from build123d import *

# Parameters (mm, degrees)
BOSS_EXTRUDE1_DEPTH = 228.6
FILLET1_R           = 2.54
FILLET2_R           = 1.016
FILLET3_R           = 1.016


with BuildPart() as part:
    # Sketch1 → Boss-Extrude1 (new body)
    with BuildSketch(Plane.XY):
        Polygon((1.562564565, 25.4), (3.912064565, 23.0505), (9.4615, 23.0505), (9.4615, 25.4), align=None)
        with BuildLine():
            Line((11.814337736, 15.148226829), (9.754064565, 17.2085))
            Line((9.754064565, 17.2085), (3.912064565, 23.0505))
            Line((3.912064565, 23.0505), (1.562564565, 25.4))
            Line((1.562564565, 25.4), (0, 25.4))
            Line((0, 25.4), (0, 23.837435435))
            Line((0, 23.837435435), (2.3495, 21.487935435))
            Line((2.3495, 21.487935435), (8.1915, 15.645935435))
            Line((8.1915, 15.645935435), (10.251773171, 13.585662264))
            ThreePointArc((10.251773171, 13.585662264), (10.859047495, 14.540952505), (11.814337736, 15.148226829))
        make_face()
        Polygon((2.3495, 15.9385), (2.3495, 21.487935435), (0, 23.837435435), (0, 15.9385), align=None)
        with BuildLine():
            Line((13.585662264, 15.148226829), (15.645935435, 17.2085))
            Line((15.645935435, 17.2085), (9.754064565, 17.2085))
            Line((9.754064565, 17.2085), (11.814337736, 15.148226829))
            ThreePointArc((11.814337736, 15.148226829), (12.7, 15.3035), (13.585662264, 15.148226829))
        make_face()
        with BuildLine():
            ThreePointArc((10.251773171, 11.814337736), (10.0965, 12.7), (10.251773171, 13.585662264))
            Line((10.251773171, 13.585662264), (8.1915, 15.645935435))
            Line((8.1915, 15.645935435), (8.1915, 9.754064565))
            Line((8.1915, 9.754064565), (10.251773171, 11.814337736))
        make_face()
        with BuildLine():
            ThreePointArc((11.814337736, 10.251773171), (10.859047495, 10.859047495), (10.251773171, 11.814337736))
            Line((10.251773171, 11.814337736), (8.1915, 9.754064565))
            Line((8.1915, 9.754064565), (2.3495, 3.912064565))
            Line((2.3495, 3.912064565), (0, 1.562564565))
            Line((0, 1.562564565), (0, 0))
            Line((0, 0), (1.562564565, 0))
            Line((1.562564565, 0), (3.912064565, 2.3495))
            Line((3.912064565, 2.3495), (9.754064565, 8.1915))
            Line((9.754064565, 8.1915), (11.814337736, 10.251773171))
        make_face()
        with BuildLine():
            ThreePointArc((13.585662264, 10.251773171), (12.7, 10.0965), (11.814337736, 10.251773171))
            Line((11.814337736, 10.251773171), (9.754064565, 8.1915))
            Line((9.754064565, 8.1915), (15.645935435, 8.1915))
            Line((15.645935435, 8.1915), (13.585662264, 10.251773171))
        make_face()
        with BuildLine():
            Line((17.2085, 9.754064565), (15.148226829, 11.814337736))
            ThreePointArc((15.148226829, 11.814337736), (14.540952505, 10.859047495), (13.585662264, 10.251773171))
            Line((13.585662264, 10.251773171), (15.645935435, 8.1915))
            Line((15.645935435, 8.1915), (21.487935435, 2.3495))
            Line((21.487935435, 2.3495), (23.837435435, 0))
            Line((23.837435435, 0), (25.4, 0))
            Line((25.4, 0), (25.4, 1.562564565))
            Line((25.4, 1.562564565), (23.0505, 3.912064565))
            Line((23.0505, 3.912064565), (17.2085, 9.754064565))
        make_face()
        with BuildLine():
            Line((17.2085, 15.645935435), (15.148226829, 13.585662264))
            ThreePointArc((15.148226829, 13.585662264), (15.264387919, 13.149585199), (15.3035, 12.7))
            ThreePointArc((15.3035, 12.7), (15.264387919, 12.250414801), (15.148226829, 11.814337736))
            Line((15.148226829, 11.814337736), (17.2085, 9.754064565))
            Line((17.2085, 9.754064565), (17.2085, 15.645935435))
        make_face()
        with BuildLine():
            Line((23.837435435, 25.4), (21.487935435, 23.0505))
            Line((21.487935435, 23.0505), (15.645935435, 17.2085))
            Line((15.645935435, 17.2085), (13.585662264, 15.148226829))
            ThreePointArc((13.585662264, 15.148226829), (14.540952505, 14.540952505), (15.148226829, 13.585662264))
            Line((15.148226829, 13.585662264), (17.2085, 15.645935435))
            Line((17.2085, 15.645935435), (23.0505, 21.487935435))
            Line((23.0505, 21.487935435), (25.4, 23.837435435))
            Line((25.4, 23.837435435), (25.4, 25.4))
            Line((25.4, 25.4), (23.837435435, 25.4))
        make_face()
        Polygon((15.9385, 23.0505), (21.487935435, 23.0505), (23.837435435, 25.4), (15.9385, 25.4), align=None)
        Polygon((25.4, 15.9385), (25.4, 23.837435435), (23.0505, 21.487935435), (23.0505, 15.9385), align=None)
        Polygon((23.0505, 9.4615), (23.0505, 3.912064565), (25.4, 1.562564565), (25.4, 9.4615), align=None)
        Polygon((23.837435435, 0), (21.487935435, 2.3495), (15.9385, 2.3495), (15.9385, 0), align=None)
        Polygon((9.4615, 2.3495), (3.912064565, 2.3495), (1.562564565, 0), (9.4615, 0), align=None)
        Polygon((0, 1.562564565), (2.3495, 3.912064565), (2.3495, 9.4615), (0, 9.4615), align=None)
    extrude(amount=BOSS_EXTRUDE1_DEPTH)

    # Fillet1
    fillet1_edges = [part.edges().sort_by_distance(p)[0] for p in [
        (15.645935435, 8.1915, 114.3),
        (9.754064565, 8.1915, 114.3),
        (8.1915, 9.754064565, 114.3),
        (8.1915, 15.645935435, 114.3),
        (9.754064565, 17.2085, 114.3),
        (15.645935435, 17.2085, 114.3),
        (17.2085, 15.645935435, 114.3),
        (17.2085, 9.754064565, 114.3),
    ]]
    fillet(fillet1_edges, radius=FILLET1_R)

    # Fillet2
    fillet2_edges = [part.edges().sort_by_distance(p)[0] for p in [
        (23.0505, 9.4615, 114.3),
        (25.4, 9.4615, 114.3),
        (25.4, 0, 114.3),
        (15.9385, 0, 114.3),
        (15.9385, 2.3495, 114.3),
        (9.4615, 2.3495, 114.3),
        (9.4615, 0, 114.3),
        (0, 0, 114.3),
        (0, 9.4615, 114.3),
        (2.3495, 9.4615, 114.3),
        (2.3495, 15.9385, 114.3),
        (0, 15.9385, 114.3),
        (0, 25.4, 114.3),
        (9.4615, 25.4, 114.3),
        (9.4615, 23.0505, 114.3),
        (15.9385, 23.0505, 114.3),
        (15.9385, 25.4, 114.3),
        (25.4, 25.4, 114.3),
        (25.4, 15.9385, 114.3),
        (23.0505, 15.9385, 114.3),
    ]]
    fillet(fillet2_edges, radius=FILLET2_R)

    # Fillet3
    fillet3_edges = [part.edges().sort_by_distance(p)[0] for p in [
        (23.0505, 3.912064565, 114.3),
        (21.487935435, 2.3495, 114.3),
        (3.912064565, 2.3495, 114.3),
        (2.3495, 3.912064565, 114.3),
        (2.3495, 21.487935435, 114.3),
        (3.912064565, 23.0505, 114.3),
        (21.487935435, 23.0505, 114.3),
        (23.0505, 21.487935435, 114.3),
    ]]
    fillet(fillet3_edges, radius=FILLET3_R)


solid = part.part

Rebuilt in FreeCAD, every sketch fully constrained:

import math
import FreeCAD as App
import Part
import Sketcher

V = App.Vector
Q = App.Units.Quantity


def edges_at(feature, points):
    """Names of the edges that pass closest to the given points."""
    edges = feature.Shape.Edges
    near = lambda p: min(range(len(edges)), key=lambda i: edges[i].distToShape(Part.Vertex(*p))[0])
    return sorted({f"Edge{near(p) + 1}" for p in points})

doc = App.newDocument("Part")
params = doc.addObject("Spreadsheet::Sheet", "Params")
for row, (alias, value) in enumerate([
    ("pad1_length", "9 in"),
    ("fillet_radius", "0.1 in"),
    ("fillet2_radius", "0.04 in"),
    ("fillet3_radius", "0.04 in"),
], start=1):
    params.set(f"A{row}", alias)
    params.set(f"B{row}", "=" + value)
    params.setAlias(f"B{row}", alias)

body = doc.addObject("PartDesign::Body", "Body")

sketch1 = body.newObject("Sketcher::SketchObject", "Sketch")
sketch1.AttachmentSupport = (doc.getObject("XY_Plane"), [""])
sketch1.MapMode = "FlatFace"
sketch1.addGeometry(Part.LineSegment(V(3.9, 23.1, 0), V(9.5, 23.1, 0)), False)
sketch1.addGeometry(Part.LineSegment(V(9.5, 23.1, 0), V(9.5, 25.4, 0)), False)
sketch1.addGeometry(Part.LineSegment(V(9.5, 25.4, 0), V(0, 25.4, 0)), False)
sketch1.addGeometry(Part.LineSegment(V(0, 25.4, 0), V(0, 15.9, 0)), False)
sketch1.addGeometry(Part.LineSegment(V(0, 15.9, 0), V(2.3, 15.9, 0)), False)
sketch1.addGeometry(Part.LineSegment(V(2.3, 15.9, 0), V(2.3, 21.5, 0)), False)
sketch1.addGeometry(Part.LineSegment(V(2.3, 21.5, 0), V(8.2, 15.6, 0)), False)
sketch1.addGeometry(Part.LineSegment(V(8.2, 15.6, 0), V(8.2, 9.8, 0)), False)
sketch1.addGeometry(Part.LineSegment(V(8.2, 9.8, 0), V(2.3, 3.9, 0)), False)
sketch1.addGeometry(Part.LineSegment(V(2.3, 3.9, 0), V(2.3, 9.5, 0)), False)
sketch1.addGeometry(Part.LineSegment(V(2.3, 9.5, 0), V(0, 9.5, 0)), False)
sketch1.addGeometry(Part.LineSegment(V(0, 9.5, 0), V(0, 0, 0)), False)
sketch1.addGeometry(Part.LineSegment(V(0, 0, 0), V(9.5, 0, 0)), False)
sketch1.addGeometry(Part.LineSegment(V(9.5, 0, 0), V(9.5, 2.3, 0)), False)
sketch1.addGeometry(Part.LineSegment(V(9.5, 2.3, 0), V(3.9, 2.3, 0)), False)
sketch1.addGeometry(Part.LineSegment(V(3.9, 2.3, 0), V(9.8, 8.2, 0)), False)
sketch1.addGeometry(Part.LineSegment(V(9.8, 8.2, 0), V(15.6, 8.2, 0)), False)
sketch1.addGeometry(Part.LineSegment(V(15.6, 8.2, 0), V(21.5, 2.3, 0)), False)
sketch1.addGeometry(Part.LineSegment(V(21.5, 2.3, 0), V(15.9, 2.3, 0)), False)
sketch1.addGeometry(Part.LineSegment(V(15.9, 2.3, 0), V(15.9, 0, 0)), False)
sketch1.addGeometry(Part.LineSegment(V(15.9, 0, 0), V(25.4, 0, 0)), False)
sketch1.addGeometry(Part.LineSegment(V(25.4, 0, 0), V(25.4, 9.5, 0)), False)
sketch1.addGeometry(Part.LineSegment(V(25.4, 9.5, 0), V(23.1, 9.5, 0)), False)
sketch1.addGeometry(Part.LineSegment(V(23.1, 9.5, 0), V(23.1, 3.9, 0)), False)
sketch1.addGeometry(Part.LineSegment(V(23.1, 3.9, 0), V(17.2, 9.8, 0)), False)
sketch1.addGeometry(Part.LineSegment(V(17.2, 9.8, 0), V(17.2, 15.6, 0)), False)
sketch1.addGeometry(Part.LineSegment(V(17.2, 15.6, 0), V(23.1, 21.5, 0)), False)
sketch1.addGeometry(Part.LineSegment(V(23.1, 21.5, 0), V(23.1, 15.9, 0)), False)
sketch1.addGeometry(Part.LineSegment(V(23.1, 15.9, 0), V(25.4, 15.9, 0)), False)
sketch1.addGeometry(Part.LineSegment(V(25.4, 15.9, 0), V(25.4, 25.4, 0)), False)
sketch1.addGeometry(Part.LineSegment(V(25.4, 25.4, 0), V(15.9, 25.4, 0)), False)
sketch1.addGeometry(Part.LineSegment(V(15.9, 25.4, 0), V(15.9, 23.1, 0)), False)
sketch1.addGeometry(Part.LineSegment(V(15.9, 23.1, 0), V(21.5, 23.1, 0)), False)
sketch1.addGeometry(Part.LineSegment(V(21.5, 23.1, 0), V(15.6, 17.2, 0)), False)
sketch1.addGeometry(Part.LineSegment(V(15.6, 17.2, 0), V(9.8, 17.2, 0)), False)
sketch1.addGeometry(Part.LineSegment(V(9.8, 17.2, 0), V(3.9, 23.1, 0)), False)
sketch1.addGeometry(Part.ArcOfCircle(Part.Circle(V(12.7, 12.7, 0), V(0, 0, 1), 2.6), math.radians(0), math.radians(19.89)), False)
sketch1.addGeometry(Part.ArcOfCircle(Part.Circle(V(12.7, 12.7, 0), V(0, 0, 1), 2.6), math.radians(-19.89), math.radians(0)), False)
sketch1.addGeometry(Part.ArcOfCircle(Part.Circle(V(12.7, 12.7, 0), V(0, 0, 1), 2.6), math.radians(-70), math.radians(-20)), False)
sketch1.addGeometry(Part.ArcOfCircle(Part.Circle(V(12.7, 12.7, 0), V(0, 0, 1), 2.6), math.radians(-110), math.radians(-70)), False)
sketch1.addGeometry(Part.ArcOfCircle(Part.Circle(V(12.7, 12.7, 0), V(0, 0, 1), 2.6), math.radians(-160), math.radians(-110)), False)
sketch1.addGeometry(Part.ArcOfCircle(Part.Circle(V(12.7, 12.7, 0), V(0, 0, 1), 2.6), math.radians(160), math.radians(200)), False)
sketch1.addGeometry(Part.ArcOfCircle(Part.Circle(V(12.7, 12.7, 0), V(0, 0, 1), 2.6), math.radians(110), math.radians(160)), False)
sketch1.addGeometry(Part.ArcOfCircle(Part.Circle(V(12.7, 12.7, 0), V(0, 0, 1), 2.6), math.radians(70), math.radians(110)), False)
sketch1.addGeometry(Part.ArcOfCircle(Part.Circle(V(12.7, 12.7, 0), V(0, 0, 1), 2.6), math.radians(20), math.radians(70)), False)
sketch1.addConstraint(Sketcher.Constraint("Coincident", 0, 2, 1, 1))
sketch1.addConstraint(Sketcher.Constraint("Coincident", 1, 2, 2, 1))
sketch1.addConstraint(Sketcher.Constraint("Coincident", 2, 2, 3, 1))
sketch1.addConstraint(Sketcher.Constraint("Coincident", 3, 2, 4, 1))
sketch1.addConstraint(Sketcher.Constraint("Coincident", 4, 2, 5, 1))
sketch1.addConstraint(Sketcher.Constraint("Coincident", 5, 2, 6, 1))
sketch1.addConstraint(Sketcher.Constraint("Coincident", 6, 2, 7, 1))
sketch1.addConstraint(Sketcher.Constraint("Coincident", 7, 2, 8, 1))
sketch1.addConstraint(Sketcher.Constraint("Coincident", 8, 2, 9, 1))
sketch1.addConstraint(Sketcher.Constraint("Coincident", 9, 2, 10, 1))
sketch1.addConstraint(Sketcher.Constraint("Coincident", 10, 2, 11, 1))
sketch1.addConstraint(Sketcher.Constraint("Coincident", 11, 2, 12, 1))
sketch1.addConstraint(Sketcher.Constraint("Coincident", 12, 2, 13, 1))
sketch1.addConstraint(Sketcher.Constraint("Coincident", 13, 2, 14, 1))
sketch1.addConstraint(Sketcher.Constraint("Coincident", 14, 2, 15, 1))
sketch1.addConstraint(Sketcher.Constraint("Coincident", 15, 2, 16, 1))
sketch1.addConstraint(Sketcher.Constraint("Coincident", 16, 2, 17, 1))
sketch1.addConstraint(Sketcher.Constraint("Coincident", 17, 2, 18, 1))
sketch1.addConstraint(Sketcher.Constraint("Coincident", 18, 2, 19, 1))
sketch1.addConstraint(Sketcher.Constraint("Coincident", 19, 2, 20, 1))
sketch1.addConstraint(Sketcher.Constraint("Coincident", 20, 2, 21, 1))
sketch1.addConstraint(Sketcher.Constraint("Coincident", 21, 2, 22, 1))
sketch1.addConstraint(Sketcher.Constraint("Coincident", 22, 2, 23, 1))
sketch1.addConstraint(Sketcher.Constraint("Coincident", 23, 2, 24, 1))
sketch1.addConstraint(Sketcher.Constraint("Coincident", 24, 2, 25, 1))
sketch1.addConstraint(Sketcher.Constraint("Coincident", 25, 2, 26, 1))
sketch1.addConstraint(Sketcher.Constraint("Coincident", 26, 2, 27, 1))
sketch1.addConstraint(Sketcher.Constraint("Coincident", 27, 2, 28, 1))
sketch1.addConstraint(Sketcher.Constraint("Coincident", 28, 2, 29, 1))
sketch1.addConstraint(Sketcher.Constraint("Coincident", 29, 2, 30, 1))
sketch1.addConstraint(Sketcher.Constraint("Coincident", 30, 2, 31, 1))
sketch1.addConstraint(Sketcher.Constraint("Coincident", 31, 2, 32, 1))
sketch1.addConstraint(Sketcher.Constraint("Coincident", 32, 2, 33, 1))
sketch1.addConstraint(Sketcher.Constraint("Coincident", 33, 2, 34, 1))
sketch1.addConstraint(Sketcher.Constraint("Coincident", 34, 2, 35, 1))
sketch1.addConstraint(Sketcher.Constraint("Coincident", 35, 2, 0, 1))
sketch1.addConstraint(Sketcher.Constraint("Tangent", 36, 1, 37, 2))
sketch1.addConstraint(Sketcher.Constraint("Tangent", 37, 1, 38, 2))
sketch1.addConstraint(Sketcher.Constraint("Tangent", 38, 1, 39, 2))
sketch1.addConstraint(Sketcher.Constraint("Tangent", 39, 1, 40, 2))
sketch1.addConstraint(Sketcher.Constraint("Tangent", 40, 1, 41, 2))
sketch1.addConstraint(Sketcher.Constraint("Tangent", 41, 1, 42, 2))
sketch1.addConstraint(Sketcher.Constraint("Tangent", 42, 1, 43, 2))
sketch1.addConstraint(Sketcher.Constraint("Tangent", 43, 1, 44, 2))
sketch1.addConstraint(Sketcher.Constraint("Tangent", 44, 1, 36, 2))
sketch1.addConstraint(Sketcher.Constraint("Horizontal", 0))
sketch1.addConstraint(Sketcher.Constraint("Vertical", 1))
sketch1.addConstraint(Sketcher.Constraint("Horizontal", 2))
sketch1.addConstraint(Sketcher.Constraint("Vertical", 3))
sketch1.addConstraint(Sketcher.Constraint("Horizontal", 4))
sketch1.addConstraint(Sketcher.Constraint("Vertical", 5))
sketch1.addConstraint(Sketcher.Constraint("Vertical", 7))
sketch1.addConstraint(Sketcher.Constraint("Vertical", 9))
sketch1.addConstraint(Sketcher.Constraint("Horizontal", 10))
sketch1.addConstraint(Sketcher.Constraint("Vertical", 11))
sketch1.addConstraint(Sketcher.Constraint("Horizontal", 12))
sketch1.addConstraint(Sketcher.Constraint("Vertical", 13))
sketch1.addConstraint(Sketcher.Constraint("Horizontal", 14))
sketch1.addConstraint(Sketcher.Constraint("Horizontal", 16))
sketch1.addConstraint(Sketcher.Constraint("Horizontal", 18))
sketch1.addConstraint(Sketcher.Constraint("Vertical", 19))
sketch1.addConstraint(Sketcher.Constraint("Horizontal", 20))
sketch1.addConstraint(Sketcher.Constraint("Vertical", 21))
sketch1.addConstraint(Sketcher.Constraint("Horizontal", 22))
sketch1.addConstraint(Sketcher.Constraint("Vertical", 23))
sketch1.addConstraint(Sketcher.Constraint("Vertical", 25))
sketch1.addConstraint(Sketcher.Constraint("Vertical", 27))
sketch1.addConstraint(Sketcher.Constraint("Horizontal", 28))
sketch1.addConstraint(Sketcher.Constraint("Vertical", 29))
sketch1.addConstraint(Sketcher.Constraint("Horizontal", 30))
sketch1.addConstraint(Sketcher.Constraint("Vertical", 31))
sketch1.addConstraint(Sketcher.Constraint("Horizontal", 32))
sketch1.addConstraint(Sketcher.Constraint("Horizontal", 34))
sketch1.addConstraint(Sketcher.Constraint("Coincident", 11, 2, -1, 1))
sketch1.addConstraint(Sketcher.Constraint("Coincident", 38, 3, 36, 3))
sketch1.addConstraint(Sketcher.Constraint("Coincident", 40, 3, 36, 3))
sketch1.addConstraint(Sketcher.Constraint("Coincident", 42, 3, 36, 3))
sketch1.addConstraint(Sketcher.Constraint("PointOnObject", 2, 2, -2))
sketch1.addConstraint(Sketcher.Constraint("PointOnObject", 19, 2, -1))
sketch1.addConstraint(Sketcher.Constraint("Perpendicular", 6, 8))
sketch1.addConstraint(Sketcher.Constraint("Parallel", 8, 15))
sketch1.addConstraint(Sketcher.Constraint("Perpendicular", 15, 17))
sketch1.addConstraint(Sketcher.Constraint("Parallel", 17, 24))
sketch1.addConstraint(Sketcher.Constraint("Perpendicular", 24, 26))
sketch1.addConstraint(Sketcher.Constraint("Parallel", 26, 33))
sketch1.addConstraint(Sketcher.Constraint("Perpendicular", 33, 35))
sketch1.addConstraint(Sketcher.Constraint("Horizontal", 14, 2, 17, 2))
sketch1.addConstraint(Sketcher.Constraint("Horizontal", 10, 2, 21, 2))
sketch1.addConstraint(Sketcher.Constraint("Horizontal", 8, 2, 23, 2))
sketch1.addConstraint(Sketcher.Constraint("Horizontal", 7, 2, 24, 2))
sketch1.addConstraint(Sketcher.Constraint("Horizontal", 6, 2, 25, 2))
sketch1.addConstraint(Sketcher.Constraint("Horizontal", 5, 2, 26, 2))
sketch1.addConstraint(Sketcher.Constraint("Horizontal", 4, 2, 27, 2))
sketch1.addConstraint(Sketcher.Constraint("Horizontal", 2, 2, 29, 2))
sketch1.addConstraint(Sketcher.Constraint("Horizontal", 0, 2, 31, 2))
sketch1.addConstraint(Sketcher.Constraint("Horizontal", 44, 3, 36, 1))
sketch1.addConstraint(Sketcher.Constraint("Horizontal", 38, 1, 39, 1))
sketch1.addConstraint(Sketcher.Constraint("Horizontal", 37, 1, 40, 1))
sketch1.addConstraint(Sketcher.Constraint("Horizontal", 42, 1, 43, 1))
sketch1.addConstraint(Sketcher.Constraint("Horizontal", 41, 1, 44, 1))
sketch1.addConstraint(Sketcher.Constraint("Vertical", 5, 2, 8, 2))
sketch1.addConstraint(Sketcher.Constraint("Vertical", 1, 2, 12, 2))
sketch1.addConstraint(Sketcher.Constraint("Vertical", 23, 2, 26, 2))
sketch1.addConstraint(Sketcher.Constraint("Vertical", 21, 2, 28, 2))
sketch1.addConstraint(Sketcher.Constraint("Vertical", 19, 2, 30, 2))
sketch1.addConstraint(Sketcher.Constraint("Vertical", 17, 2, 32, 2))
sketch1.addConstraint(Sketcher.Constraint("Vertical", 16, 2, 33, 2))
sketch1.addConstraint(Sketcher.Constraint("Vertical", 15, 2, 34, 2))
sketch1.addConstraint(Sketcher.Constraint("Vertical", 40, 1, 41, 1))
sketch1.addConstraint(Sketcher.Constraint("Vertical", 39, 1, 42, 1))
sketch1.addConstraint(Sketcher.Constraint("Equal", 14, 18))
sketch1.addConstraint(Sketcher.Constraint("Equal", 12, 20))
sketch1.addConstraint(Sketcher.Constraint("Equal", 10, 22))
sketch1.addConstraint(Sketcher.Constraint("Equal", 28, 1))
sketch1.addConstraint(Sketcher.Constraint("Equal", 30, 3))
sketch1.addConstraint(Sketcher.Constraint("Equal", 32, 5))
sketch1.addConstraint(Sketcher.Constraint("Equal", 34, 7))
sketch1.addConstraint(Sketcher.Constraint("Equal", 5, 9))
sketch1.addConstraint(Sketcher.Constraint("Equal", 3, 11))
sketch1.addConstraint(Sketcher.Constraint("Equal", 1, 13))
sketch1.addConstraint(Sketcher.Constraint("Equal", 8, 15))
sketch1.addConstraint(Sketcher.Constraint("DistanceY", -1, 1, 1, 2, Q("1 in")))
sketch1.addConstraint(Sketcher.Constraint("DistanceX", -1, 1, 36, 3, Q("0.5 in")))
sketch1.addConstraint(Sketcher.Constraint("DistanceY", -1, 1, 36, 3, Q("0.5 in")))
sketch1.addConstraint(Sketcher.Constraint("Radius", 36, Q("0.1025 in")))
sketch1.addConstraint(Sketcher.Constraint("DistanceY", 3, 2, 0, 2, Q("0.28 in")))
sketch1.addConstraint(Sketcher.Constraint("DistanceX", 8, 2, 7, 2, Q("0.23 in")))
sketch1.addConstraint(Sketcher.Constraint("DistanceX", 2, 2, 2, 1, Q("0.3725 in")))
sketch1.addConstraint(Sketcher.Constraint("DistanceX", 16, 1, 16, 2, 5.891871))
sketch1.addConstraint(Sketcher.Constraint("DistanceX", -1, 1, 37, 1, 15.148227))
sketch1.addConstraint(Sketcher.Constraint("DistanceX", -1, 1, 38, 1, 13.585662))
pad1 = body.newObject("PartDesign::Pad", "Pad")
pad1.Profile = sketch1
pad1.setExpression("Length", "Params.pad1_length")
doc.recompute()

fillet = body.newObject("PartDesign::Fillet", "Fillet")
fillet.Base = (pad1, edges_at(pad1, [
    (15.646, 8.191, 114.3),
    (9.754, 8.191, 114.3),
    (8.191, 9.754, 114.3),
    (8.191, 15.646, 114.3),
    (9.754, 17.209, 114.3),
    (15.646, 17.209, 114.3),
    (17.209, 15.646, 114.3),
    (17.209, 9.754, 114.3),
]))
fillet.setExpression("Radius", "Params.fillet_radius")
doc.recompute()

fillet2 = body.newObject("PartDesign::Fillet", "Fillet001")
fillet2.Base = (fillet, edges_at(fillet, [
    (23.05, 9.461, 114.3),
    (25.4, 9.461, 114.3),
    (25.4, 0, 114.3),
    (15.938, 0, 114.3),
    (15.938, 2.349, 114.3),
    (9.461, 2.349, 114.3),
    (9.461, 0, 114.3),
    (0, 0, 114.3),
    (0, 9.461, 114.3),
    (2.349, 9.461, 114.3),
    (2.349, 15.938, 114.3),
    (0, 15.938, 114.3),
    (0, 25.4, 114.3),
    (9.461, 25.4, 114.3),
    (9.461, 23.05, 114.3),
    (15.938, 23.05, 114.3),
    (15.938, 25.4, 114.3),
    (25.4, 25.4, 114.3),
    (25.4, 15.938, 114.3),
    (23.05, 15.938, 114.3),
]))
fillet2.setExpression("Radius", "Params.fillet2_radius")
doc.recompute()

fillet3 = body.newObject("PartDesign::Fillet", "Fillet002")
fillet3.Base = (fillet2, edges_at(fillet2, [
    (23.05, 3.912, 114.3),
    (21.488, 2.349, 114.3),
    (3.912, 2.349, 114.3),
    (2.349, 3.912, 114.3),
    (2.349, 21.488, 114.3),
    (3.912, 23.05, 114.3),
    (21.488, 23.05, 114.3),
    (23.05, 21.488, 114.3),
]))
fillet3.setExpression("Radius", "Params.fillet3_radius")

doc.recompute()
